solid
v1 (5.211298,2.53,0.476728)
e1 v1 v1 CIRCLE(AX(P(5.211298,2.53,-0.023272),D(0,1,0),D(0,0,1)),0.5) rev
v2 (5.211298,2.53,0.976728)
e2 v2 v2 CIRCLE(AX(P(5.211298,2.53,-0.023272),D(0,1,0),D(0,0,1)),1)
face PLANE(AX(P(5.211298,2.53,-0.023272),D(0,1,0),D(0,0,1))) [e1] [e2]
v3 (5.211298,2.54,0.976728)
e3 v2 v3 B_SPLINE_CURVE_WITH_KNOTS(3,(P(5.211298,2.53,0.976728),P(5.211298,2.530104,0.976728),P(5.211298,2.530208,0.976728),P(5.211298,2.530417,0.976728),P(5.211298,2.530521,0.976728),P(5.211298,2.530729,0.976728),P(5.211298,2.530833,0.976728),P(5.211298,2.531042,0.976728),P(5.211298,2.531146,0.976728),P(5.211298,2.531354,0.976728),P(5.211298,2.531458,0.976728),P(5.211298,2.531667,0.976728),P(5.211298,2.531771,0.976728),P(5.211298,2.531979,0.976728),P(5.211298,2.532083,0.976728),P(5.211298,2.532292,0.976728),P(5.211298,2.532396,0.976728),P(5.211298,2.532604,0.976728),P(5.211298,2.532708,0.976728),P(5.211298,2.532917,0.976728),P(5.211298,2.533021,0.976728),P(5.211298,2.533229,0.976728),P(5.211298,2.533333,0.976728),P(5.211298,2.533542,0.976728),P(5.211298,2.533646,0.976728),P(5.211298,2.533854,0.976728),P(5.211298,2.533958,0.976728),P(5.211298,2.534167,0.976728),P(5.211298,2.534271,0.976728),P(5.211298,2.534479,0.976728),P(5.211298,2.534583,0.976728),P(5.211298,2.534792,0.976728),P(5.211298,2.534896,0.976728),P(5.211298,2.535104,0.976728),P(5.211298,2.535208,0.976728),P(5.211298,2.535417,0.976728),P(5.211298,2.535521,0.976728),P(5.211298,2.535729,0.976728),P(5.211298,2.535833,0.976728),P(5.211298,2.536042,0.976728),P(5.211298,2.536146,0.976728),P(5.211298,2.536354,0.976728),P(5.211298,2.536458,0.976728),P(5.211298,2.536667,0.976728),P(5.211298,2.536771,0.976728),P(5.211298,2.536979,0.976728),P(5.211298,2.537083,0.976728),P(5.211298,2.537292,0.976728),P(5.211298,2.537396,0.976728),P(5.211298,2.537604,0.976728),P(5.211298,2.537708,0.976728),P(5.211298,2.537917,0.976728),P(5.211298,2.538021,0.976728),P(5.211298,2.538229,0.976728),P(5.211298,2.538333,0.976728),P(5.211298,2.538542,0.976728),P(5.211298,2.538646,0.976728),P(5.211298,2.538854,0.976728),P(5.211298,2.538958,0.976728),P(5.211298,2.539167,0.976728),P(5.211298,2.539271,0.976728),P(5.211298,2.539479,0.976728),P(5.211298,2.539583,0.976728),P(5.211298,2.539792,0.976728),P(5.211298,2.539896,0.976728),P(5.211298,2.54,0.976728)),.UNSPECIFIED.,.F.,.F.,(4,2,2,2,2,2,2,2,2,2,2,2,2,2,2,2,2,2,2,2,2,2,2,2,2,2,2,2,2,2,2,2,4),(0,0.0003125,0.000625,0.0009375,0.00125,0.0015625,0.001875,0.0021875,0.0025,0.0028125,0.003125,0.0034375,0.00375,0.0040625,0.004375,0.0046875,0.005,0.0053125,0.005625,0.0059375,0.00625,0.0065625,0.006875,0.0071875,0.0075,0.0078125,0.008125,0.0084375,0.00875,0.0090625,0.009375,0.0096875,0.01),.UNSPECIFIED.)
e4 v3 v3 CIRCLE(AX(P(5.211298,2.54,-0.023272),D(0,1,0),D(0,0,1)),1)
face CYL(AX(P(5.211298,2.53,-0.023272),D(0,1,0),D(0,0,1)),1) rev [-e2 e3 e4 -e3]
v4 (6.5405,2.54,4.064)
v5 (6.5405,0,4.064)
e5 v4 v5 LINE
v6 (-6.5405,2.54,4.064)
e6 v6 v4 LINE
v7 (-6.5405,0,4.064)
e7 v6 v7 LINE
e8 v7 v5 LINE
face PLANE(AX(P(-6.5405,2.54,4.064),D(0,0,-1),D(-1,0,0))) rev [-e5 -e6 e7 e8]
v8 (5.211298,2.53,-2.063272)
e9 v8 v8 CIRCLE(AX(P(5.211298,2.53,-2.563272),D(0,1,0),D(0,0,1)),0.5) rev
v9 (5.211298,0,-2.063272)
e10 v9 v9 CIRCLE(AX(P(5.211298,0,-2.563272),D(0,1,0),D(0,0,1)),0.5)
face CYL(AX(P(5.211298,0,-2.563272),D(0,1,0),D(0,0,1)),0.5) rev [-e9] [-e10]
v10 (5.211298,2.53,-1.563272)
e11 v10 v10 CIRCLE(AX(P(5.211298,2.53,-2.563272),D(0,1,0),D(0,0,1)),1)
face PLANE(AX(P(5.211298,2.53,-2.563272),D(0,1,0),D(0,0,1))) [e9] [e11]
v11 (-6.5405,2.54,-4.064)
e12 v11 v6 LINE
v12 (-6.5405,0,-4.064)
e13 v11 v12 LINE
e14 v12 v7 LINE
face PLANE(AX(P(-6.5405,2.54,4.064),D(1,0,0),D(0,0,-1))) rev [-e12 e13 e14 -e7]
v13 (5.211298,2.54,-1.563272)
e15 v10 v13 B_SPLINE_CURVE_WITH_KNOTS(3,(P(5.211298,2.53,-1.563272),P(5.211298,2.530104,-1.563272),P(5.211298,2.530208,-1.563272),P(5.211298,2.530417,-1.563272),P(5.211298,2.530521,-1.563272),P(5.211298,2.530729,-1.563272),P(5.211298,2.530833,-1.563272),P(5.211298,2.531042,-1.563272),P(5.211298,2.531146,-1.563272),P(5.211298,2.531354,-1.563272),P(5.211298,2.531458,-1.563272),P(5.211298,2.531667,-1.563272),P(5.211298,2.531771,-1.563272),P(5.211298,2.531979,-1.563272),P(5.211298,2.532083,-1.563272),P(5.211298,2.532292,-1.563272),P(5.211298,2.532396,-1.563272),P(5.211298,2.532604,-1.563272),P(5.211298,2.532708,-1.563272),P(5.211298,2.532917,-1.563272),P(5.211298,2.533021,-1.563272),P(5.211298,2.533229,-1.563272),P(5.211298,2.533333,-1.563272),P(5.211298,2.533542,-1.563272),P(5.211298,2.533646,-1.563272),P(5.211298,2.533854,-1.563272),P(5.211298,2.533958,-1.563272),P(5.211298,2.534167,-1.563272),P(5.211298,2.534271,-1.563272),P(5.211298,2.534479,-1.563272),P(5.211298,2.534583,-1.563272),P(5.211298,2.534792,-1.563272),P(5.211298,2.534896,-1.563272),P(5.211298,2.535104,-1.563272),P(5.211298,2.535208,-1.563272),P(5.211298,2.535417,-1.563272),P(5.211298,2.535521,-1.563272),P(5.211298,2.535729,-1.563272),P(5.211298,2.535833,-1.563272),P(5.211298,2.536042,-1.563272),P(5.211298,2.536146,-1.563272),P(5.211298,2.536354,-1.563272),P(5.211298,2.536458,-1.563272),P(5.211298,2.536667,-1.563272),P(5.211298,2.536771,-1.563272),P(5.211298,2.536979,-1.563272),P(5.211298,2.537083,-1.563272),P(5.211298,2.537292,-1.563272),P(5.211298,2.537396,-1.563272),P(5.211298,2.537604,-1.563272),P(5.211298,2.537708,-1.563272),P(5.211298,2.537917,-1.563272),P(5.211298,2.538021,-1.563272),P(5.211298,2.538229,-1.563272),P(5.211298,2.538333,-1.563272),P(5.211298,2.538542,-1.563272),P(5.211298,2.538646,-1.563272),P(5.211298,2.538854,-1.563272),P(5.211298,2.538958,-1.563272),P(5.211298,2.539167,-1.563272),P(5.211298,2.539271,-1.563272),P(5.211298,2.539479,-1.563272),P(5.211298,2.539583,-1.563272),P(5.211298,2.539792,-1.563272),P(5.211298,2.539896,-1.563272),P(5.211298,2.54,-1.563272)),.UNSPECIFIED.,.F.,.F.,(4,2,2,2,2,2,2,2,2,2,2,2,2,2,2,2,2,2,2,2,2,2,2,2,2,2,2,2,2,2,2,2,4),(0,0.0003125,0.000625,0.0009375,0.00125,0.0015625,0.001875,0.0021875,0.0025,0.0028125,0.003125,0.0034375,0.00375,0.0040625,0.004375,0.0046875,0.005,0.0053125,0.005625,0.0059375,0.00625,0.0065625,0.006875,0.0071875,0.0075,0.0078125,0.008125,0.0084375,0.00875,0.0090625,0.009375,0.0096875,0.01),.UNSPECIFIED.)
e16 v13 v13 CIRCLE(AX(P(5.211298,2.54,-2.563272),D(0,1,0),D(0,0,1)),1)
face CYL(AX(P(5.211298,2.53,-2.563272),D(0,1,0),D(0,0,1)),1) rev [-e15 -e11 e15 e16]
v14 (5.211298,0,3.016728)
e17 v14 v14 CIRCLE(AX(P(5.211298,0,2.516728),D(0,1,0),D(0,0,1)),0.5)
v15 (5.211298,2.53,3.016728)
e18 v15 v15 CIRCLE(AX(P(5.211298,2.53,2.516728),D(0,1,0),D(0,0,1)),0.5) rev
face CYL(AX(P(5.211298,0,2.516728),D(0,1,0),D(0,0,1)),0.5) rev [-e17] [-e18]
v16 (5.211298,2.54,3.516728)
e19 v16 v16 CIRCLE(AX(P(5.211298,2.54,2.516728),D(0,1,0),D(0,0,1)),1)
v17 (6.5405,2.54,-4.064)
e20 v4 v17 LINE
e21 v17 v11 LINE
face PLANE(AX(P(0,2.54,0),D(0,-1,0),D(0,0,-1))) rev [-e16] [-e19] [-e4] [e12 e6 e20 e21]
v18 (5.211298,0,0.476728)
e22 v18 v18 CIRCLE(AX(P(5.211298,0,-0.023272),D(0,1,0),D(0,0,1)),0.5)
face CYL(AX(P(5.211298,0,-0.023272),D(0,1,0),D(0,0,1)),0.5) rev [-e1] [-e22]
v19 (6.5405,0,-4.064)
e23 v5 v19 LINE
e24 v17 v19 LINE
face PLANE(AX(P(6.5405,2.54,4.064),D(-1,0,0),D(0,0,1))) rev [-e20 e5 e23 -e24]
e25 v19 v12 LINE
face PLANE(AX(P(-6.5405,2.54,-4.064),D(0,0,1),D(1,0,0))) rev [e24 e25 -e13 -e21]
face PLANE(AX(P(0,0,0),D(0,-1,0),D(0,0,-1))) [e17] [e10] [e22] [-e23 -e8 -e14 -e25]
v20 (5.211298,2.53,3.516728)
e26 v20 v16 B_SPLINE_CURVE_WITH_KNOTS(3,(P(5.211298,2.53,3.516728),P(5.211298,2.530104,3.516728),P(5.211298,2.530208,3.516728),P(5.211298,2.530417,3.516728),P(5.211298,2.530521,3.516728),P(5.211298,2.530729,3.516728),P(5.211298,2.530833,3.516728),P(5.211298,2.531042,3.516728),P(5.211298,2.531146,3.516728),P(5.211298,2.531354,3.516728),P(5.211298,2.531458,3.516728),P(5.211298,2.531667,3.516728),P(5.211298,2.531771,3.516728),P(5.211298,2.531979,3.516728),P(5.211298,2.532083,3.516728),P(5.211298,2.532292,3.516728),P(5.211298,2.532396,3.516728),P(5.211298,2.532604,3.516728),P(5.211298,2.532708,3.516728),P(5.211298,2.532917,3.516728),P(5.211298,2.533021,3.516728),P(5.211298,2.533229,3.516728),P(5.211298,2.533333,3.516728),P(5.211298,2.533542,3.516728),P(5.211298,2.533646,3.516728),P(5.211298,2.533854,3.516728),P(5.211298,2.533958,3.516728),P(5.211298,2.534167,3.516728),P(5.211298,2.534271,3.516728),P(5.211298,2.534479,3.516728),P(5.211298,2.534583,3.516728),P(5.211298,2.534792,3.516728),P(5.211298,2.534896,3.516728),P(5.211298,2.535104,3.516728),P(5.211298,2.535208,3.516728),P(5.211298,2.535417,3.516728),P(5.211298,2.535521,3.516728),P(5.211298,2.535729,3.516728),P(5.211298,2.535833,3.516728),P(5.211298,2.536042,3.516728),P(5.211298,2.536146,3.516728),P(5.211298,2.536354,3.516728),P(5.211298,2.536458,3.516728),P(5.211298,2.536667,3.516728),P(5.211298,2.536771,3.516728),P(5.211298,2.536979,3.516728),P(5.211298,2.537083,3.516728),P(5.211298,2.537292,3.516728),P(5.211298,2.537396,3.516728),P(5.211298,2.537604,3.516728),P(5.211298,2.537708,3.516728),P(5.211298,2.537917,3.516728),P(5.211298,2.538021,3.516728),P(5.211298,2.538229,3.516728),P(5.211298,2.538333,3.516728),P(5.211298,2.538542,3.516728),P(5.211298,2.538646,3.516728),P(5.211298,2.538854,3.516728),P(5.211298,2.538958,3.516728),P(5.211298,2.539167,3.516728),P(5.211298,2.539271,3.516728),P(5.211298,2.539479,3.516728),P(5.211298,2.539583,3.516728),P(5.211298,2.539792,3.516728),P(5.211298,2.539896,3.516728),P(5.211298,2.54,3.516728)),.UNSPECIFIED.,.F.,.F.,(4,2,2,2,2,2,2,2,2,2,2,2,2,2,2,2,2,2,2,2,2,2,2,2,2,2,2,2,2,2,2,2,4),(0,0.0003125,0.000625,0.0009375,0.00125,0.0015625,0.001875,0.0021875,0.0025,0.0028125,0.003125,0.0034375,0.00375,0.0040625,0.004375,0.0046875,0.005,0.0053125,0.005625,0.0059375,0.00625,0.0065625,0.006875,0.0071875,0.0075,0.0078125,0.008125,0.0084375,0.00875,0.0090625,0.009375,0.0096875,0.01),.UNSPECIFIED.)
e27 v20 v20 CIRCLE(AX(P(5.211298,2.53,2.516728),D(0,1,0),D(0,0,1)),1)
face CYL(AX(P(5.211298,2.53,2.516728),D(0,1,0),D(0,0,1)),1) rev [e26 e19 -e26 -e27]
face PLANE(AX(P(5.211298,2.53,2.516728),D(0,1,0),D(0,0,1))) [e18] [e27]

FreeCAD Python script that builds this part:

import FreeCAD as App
import Part
import Sketcher

V = App.Vector
Q = App.Units.Quantity


def add_polygon(sketch, points):
    """Adds a closed chain of lines whose ends are joined by coincident constraints."""
    first, n = sketch.GeometryCount, len(points)
    for a, b in zip(points, points[1:] + points[:1]):
        sketch.addGeometry(Part.LineSegment(App.Vector(*a, 0), App.Vector(*b, 0)), False)
    for i in range(n):
        sketch.addConstraint(Sketcher.Constraint("Coincident", first + i, 2, first + (i + 1) % n, 1))

doc = App.newDocument("Part")
body = doc.addObject("PartDesign::Body", "Body")

# Sketch on XZ plane
sketch1 = body.newObject("Sketcher::SketchObject", "Sketch")
sketch1.AttachmentSupport = (doc.getObject("XZ_Plane"), [""])
sketch1.MapMode = "FlatFace"
add_polygon(sketch1, [(-6.5405, -4.064), (-6.5405, 4.064), (6.5405, 4.064), (6.5405, -4.064)])  # lines 0-3
sketch1.addConstraint([
    Sketcher.Constraint("Vertical", 0),
    Sketcher.Constraint("Horizontal", 1),
    Sketcher.Constraint("Vertical", 2),
    Sketcher.Constraint("Horizontal", 3),
    Sketcher.Constraint("Symmetric", 0, 2, 2, 2, -1, 1),
    Sketcher.Constraint("DistanceY", 0, 1, 0, 2, Q("0.32 in")),
    Sketcher.Constraint("DistanceX", 1, 1, 1, 2, Q("0.515 in")),
])
pad1 = body.newObject("PartDesign::Pad", "Pad")
pad1.Profile = sketch1
pad1.Length = Q("0.1 in")
pad1.Reversed = True

# Sketch on XZ plane
sketch2 = body.newObject("Sketcher::SketchObject", "Sketch001")
sketch2.AttachmentSupport = (doc.getObject("XZ_Plane"), [""])
sketch2.MapMode = "FlatFace"
sketch2.AttachmentOffset = App.Placement(V(0, 0, -0.1 * 25.4), App.Rotation())
sketch2.addGeometry([
    Part.Circle(V(5.211298, -2.563272, 0), V(0, 0, 1), 0.5),
    Part.Circle(V(5.211298, -0.023272, 0), V(0, 0, 1), 0.5),
    Part.Circle(V(5.211298, 2.516728, 0), V(0, 0, 1), 0.5),
], False)
sketch2.addConstraint([
    Sketcher.Constraint("Equal", 0, 1),
    Sketcher.Constraint("Equal", 1, 2),
    Sketcher.Constraint("Vertical", 0, 3, 1, 3),
    Sketcher.Constraint("Vertical", 1, 3, 2, 3),
    Sketcher.Constraint("DistanceY", 0, 3, 1, 3, Q("0.1 in")),
    Sketcher.Constraint("DistanceY", 1, 3, 2, 3, Q("0.1 in")),
    Sketcher.Constraint("Diameter", 0, Q("1 mm")),
    Sketcher.Constraint("DistanceY", 0, 3, -1, 1, Q("2.563272 mm")),
    Sketcher.Constraint("DistanceX", -1, 1, 0, 3, Q("5.211298 mm")),
])
pocket1 = body.newObject("PartDesign::Pocket", "Pocket")
pocket1.Profile = sketch2
pocket1.Type = "ThroughAll"
pocket1.Reversed = True

# Sketch on XZ plane
sketch3 = body.newObject("Sketcher::SketchObject", "Sketch002")
sketch3.AttachmentSupport = (doc.getObject("XZ_Plane"), [""])
sketch3.MapMode = "FlatFace"
sketch3.AttachmentOffset = App.Placement(V(0, 0, -0.1 * 25.4), App.Rotation())
sketch3.addGeometry([
    Part.Circle(V(5.211298, -2.563272, 0), V(0, 0, 1), 1),
    Part.Circle(V(5.211298, -0.023272, 0), V(0, 0, 1), 1),
    Part.Circle(V(5.211298, 2.516728, 0), V(0, 0, 1), 1),
], False)
sketch3.addConstraint([
    Sketcher.Constraint("Equal", 0, 1),
    Sketcher.Constraint("Equal", 1, 2),
    Sketcher.Constraint("Vertical", 0, 3, 1, 3),
    Sketcher.Constraint("Vertical", 1, 3, 2, 3),
    Sketcher.Constraint("DistanceY", 0, 3, 1, 3, Q("0.1 in")),
    Sketcher.Constraint("DistanceY", 1, 3, 2, 3, Q("0.1 in")),
    Sketcher.Constraint("Diameter", 0, Q("2 mm")),
    Sketcher.Constraint("DistanceY", 0, 3, -1, 1, Q("2.563272 mm")),
    Sketcher.Constraint("DistanceX", -1, 1, 0, 3, Q("5.211298 mm")),
])
pocket2 = body.newObject("PartDesign::Pocket", "Pocket001")
pocket2.Profile = sketch3
pocket2.Length = 0.01
pocket2.Reversed = True

doc.recompute()
